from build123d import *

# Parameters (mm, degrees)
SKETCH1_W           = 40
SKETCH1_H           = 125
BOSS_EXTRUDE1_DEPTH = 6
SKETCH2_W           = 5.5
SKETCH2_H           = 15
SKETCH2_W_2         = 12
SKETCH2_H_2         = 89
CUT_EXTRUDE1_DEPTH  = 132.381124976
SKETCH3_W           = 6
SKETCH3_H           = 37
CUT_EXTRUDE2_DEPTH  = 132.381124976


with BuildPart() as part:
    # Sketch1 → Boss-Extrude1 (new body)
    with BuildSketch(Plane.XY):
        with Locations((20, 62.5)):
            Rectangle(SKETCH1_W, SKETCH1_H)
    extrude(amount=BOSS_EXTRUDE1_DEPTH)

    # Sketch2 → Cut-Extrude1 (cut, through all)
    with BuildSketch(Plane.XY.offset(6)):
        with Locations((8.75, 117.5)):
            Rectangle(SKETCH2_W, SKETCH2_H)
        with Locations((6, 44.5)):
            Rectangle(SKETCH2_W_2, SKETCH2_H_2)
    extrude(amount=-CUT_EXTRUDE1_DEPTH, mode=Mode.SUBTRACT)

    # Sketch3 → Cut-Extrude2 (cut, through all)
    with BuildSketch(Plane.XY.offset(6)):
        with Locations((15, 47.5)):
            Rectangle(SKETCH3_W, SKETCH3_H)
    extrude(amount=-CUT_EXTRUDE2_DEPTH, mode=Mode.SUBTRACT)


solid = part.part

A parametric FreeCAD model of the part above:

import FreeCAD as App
import Part
import Sketcher

V = App.Vector

doc = App.newDocument("Part")
body = doc.addObject("PartDesign::Body", "Body")

sketch1 = body.newObject("Sketcher::SketchObject", "Sketch")
sketch1.AttachmentSupport = (doc.getObject("XY_Plane"), [""])
sketch1.MapMode = "FlatFace"
sketch1.addGeometry(Part.LineSegment(V(0, 125, 0), V(0, 0, 0)), False)
sketch1.addGeometry(Part.LineSegment(V(0, 0, 0), V(40, 0, 0)), False)
sketch1.addGeometry(Part.LineSegment(V(40, 0, 0), V(40, 125, 0)), False)
sketch1.addGeometry(Part.LineSegment(V(40, 125, 0), V(0, 125, 0)), False)
sketch1.addConstraint(Sketcher.Constraint("Coincident", 0, 2, 1, 1))
sketch1.addConstraint(Sketcher.Constraint("Coincident", 1, 2, 2, 1))
sketch1.addConstraint(Sketcher.Constraint("Coincident", 2, 2, 3, 1))
sketch1.addConstraint(Sketcher.Constraint("Coincident", 3, 2, 0, 1))
sketch1.addConstraint(Sketcher.Constraint("Vertical", 0))
sketch1.addConstraint(Sketcher.Constraint("Horizontal", 1))
sketch1.addConstraint(Sketcher.Constraint("Vertical", 2))
sketch1.addConstraint(Sketcher.Constraint("Horizontal", 3))
sketch1.addConstraint(Sketcher.Constraint("Coincident", 0, 2, -1, 1))
sketch1.addConstraint(Sketcher.Constraint("DistanceX", 1, 1, 1, 2, 40.0))
sketch1.addConstraint(Sketcher.Constraint("DistanceY", 0, 2, 0, 1, 125.0))
pad1 = body.newObject("PartDesign::Pad", "Pad")
pad1.Profile = sketch1
pad1.Length = 6

sketch2 = body.newObject("Sketcher::SketchObject", "Sketch001")
sketch2.AttachmentSupport = (doc.getObject("XY_Plane"), [""])
sketch2.MapMode = "FlatFace"
sketch2.AttachmentOffset = App.Placement(V(0, 0, 6), App.Rotation())
sketch2.addGeometry(Part.LineSegment(V(6, 125, 0), V(6, 110, 0)), False)
sketch2.addGeometry(Part.LineSegment(V(6, 110, 0), V(11.5, 110, 0)), False)
sketch2.addGeometry(Part.LineSegment(V(11.5, 110, 0), V(11.5, 125, 0)), False)
sketch2.addGeometry(Part.LineSegment(V(11.5, 125, 0), V(6, 125, 0)), False)
sketch2.addGeometry(Part.LineSegment(V(0, 89, 0), V(0, 0, 0)), False)
sketch2.addGeometry(Part.LineSegment(V(0, 0, 0), V(12, 0, 0)), False)
sketch2.addGeometry(Part.LineSegment(V(12, 0, 0), V(12, 89, 0)), False)
sketch2.addGeometry(Part.LineSegment(V(12, 89, 0), V(0, 89, 0)), False)
sketch2.addConstraint(Sketcher.Constraint("Coincident", 0, 2, 1, 1))
sketch2.addConstraint(Sketcher.Constraint("Coincident", 1, 2, 2, 1))
sketch2.addConstraint(Sketcher.Constraint("Coincident", 2, 2, 3, 1))
sketch2.addConstraint(Sketcher.Constraint("Coincident", 3, 2, 0, 1))
sketch2.addConstraint(Sketcher.Constraint("Coincident", 4, 2, 5, 1))
sketch2.addConstraint(Sketcher.Constraint("Coincident", 5, 2, 6, 1))
sketch2.addConstraint(Sketcher.Constraint("Coincident", 6, 2, 7, 1))
sketch2.addConstraint(Sketcher.Constraint("Coincident", 7, 2, 4, 1))
sketch2.addConstraint(Sketcher.Constraint("Vertical", 0))
sketch2.addConstraint(Sketcher.Constraint("Horizontal", 1))
sketch2.addConstraint(Sketcher.Constraint("Vertical", 2))
sketch2.addConstraint(Sketcher.Constraint("Horizontal", 3))
sketch2.addConstraint(Sketcher.Constraint("Vertical", 4))
sketch2.addConstraint(Sketcher.Constraint("Horizontal", 5))
sketch2.addConstraint(Sketcher.Constraint("Vertical", 6))
sketch2.addConstraint(Sketcher.Constraint("Horizontal", 7))
sketch2.addConstraint(Sketcher.Constraint("Coincident", 4, 2, -1, 1))
sketch2.addConstraint(Sketcher.Constraint("DistanceX", 5, 1, 5, 2, 12.0))
sketch2.addConstraint(Sketcher.Constraint("DistanceY", 0, 2, 0, 1, 15.0))
sketch2.addConstraint(Sketcher.Constraint("DistanceY", 4, 2, 4, 1, 89.0))
sketch2.addConstraint(Sketcher.Constraint("DistanceX", 1, 1, 1, 2, 5.5))
sketch2.addConstraint(Sketcher.Constraint("DistanceX", -1, 1, 0, 2, 6.0))
sketch2.addConstraint(Sketcher.Constraint("DistanceY", -1, 1, 0, 2, 110.0))
pocket1 = body.newObject("PartDesign::Pocket", "Pocket")
pocket1.Profile = sketch2
pocket1.Type = "ThroughAll"

sketch3 = body.newObject("Sketcher::SketchObject", "Sketch002")
sketch3.AttachmentSupport = (doc.getObject("XY_Plane"), [""])
sketch3.MapMode = "FlatFace"
sketch3.AttachmentOffset = App.Placement(V(0, 0, 6), App.Rotation())
sketch3.addGeometry(Part.LineSegment(V(12, 66, 0), V(12, 29, 0)), False)
sketch3.addGeometry(Part.LineSegment(V(12, 29, 0), V(18, 29, 0)), False)
sketch3.addGeometry(Part.LineSegment(V(18, 29, 0), V(18, 66, 0)), False)
sketch3.addGeometry(Part.LineSegment(V(18, 66, 0), V(12, 66, 0)), False)
sketch3.addConstraint(Sketcher.Constraint("Coincident", 0, 2, 1, 1))
sketch3.addConstraint(Sketcher.Constraint("Coincident", 1, 2, 2, 1))
sketch3.addConstraint(Sketcher.Constraint("Coincident", 2, 2, 3, 1))
sketch3.addConstraint(Sketcher.Constraint("Coincident", 3, 2, 0, 1))
sketch3.addConstraint(Sketcher.Constraint("Vertical", 0))
sketch3.addConstraint(Sketcher.Constraint("Horizontal", 1))
sketch3.addConstraint(Sketcher.Constraint("Vertical", 2))
sketch3.addConstraint(Sketcher.Constraint("Horizontal", 3))
sketch3.addConstraint(Sketcher.Constraint("DistanceX", 1, 1, 1, 2, 6.0))
sketch3.addConstraint(Sketcher.Constraint("DistanceY", 0, 2, 0, 1, 37.0))
sketch3.addConstraint(Sketcher.Constraint("DistanceX", -1, 1, 0, 2, 12.0))
sketch3.addConstraint(Sketcher.Constraint("DistanceY", -1, 1, 0, 2, 29.0))
pocket2 = body.newObject("PartDesign::Pocket", "Pocket001")
pocket2.Profile = sketch3
pocket2.Type = "ThroughAll"

doc.recompute()
